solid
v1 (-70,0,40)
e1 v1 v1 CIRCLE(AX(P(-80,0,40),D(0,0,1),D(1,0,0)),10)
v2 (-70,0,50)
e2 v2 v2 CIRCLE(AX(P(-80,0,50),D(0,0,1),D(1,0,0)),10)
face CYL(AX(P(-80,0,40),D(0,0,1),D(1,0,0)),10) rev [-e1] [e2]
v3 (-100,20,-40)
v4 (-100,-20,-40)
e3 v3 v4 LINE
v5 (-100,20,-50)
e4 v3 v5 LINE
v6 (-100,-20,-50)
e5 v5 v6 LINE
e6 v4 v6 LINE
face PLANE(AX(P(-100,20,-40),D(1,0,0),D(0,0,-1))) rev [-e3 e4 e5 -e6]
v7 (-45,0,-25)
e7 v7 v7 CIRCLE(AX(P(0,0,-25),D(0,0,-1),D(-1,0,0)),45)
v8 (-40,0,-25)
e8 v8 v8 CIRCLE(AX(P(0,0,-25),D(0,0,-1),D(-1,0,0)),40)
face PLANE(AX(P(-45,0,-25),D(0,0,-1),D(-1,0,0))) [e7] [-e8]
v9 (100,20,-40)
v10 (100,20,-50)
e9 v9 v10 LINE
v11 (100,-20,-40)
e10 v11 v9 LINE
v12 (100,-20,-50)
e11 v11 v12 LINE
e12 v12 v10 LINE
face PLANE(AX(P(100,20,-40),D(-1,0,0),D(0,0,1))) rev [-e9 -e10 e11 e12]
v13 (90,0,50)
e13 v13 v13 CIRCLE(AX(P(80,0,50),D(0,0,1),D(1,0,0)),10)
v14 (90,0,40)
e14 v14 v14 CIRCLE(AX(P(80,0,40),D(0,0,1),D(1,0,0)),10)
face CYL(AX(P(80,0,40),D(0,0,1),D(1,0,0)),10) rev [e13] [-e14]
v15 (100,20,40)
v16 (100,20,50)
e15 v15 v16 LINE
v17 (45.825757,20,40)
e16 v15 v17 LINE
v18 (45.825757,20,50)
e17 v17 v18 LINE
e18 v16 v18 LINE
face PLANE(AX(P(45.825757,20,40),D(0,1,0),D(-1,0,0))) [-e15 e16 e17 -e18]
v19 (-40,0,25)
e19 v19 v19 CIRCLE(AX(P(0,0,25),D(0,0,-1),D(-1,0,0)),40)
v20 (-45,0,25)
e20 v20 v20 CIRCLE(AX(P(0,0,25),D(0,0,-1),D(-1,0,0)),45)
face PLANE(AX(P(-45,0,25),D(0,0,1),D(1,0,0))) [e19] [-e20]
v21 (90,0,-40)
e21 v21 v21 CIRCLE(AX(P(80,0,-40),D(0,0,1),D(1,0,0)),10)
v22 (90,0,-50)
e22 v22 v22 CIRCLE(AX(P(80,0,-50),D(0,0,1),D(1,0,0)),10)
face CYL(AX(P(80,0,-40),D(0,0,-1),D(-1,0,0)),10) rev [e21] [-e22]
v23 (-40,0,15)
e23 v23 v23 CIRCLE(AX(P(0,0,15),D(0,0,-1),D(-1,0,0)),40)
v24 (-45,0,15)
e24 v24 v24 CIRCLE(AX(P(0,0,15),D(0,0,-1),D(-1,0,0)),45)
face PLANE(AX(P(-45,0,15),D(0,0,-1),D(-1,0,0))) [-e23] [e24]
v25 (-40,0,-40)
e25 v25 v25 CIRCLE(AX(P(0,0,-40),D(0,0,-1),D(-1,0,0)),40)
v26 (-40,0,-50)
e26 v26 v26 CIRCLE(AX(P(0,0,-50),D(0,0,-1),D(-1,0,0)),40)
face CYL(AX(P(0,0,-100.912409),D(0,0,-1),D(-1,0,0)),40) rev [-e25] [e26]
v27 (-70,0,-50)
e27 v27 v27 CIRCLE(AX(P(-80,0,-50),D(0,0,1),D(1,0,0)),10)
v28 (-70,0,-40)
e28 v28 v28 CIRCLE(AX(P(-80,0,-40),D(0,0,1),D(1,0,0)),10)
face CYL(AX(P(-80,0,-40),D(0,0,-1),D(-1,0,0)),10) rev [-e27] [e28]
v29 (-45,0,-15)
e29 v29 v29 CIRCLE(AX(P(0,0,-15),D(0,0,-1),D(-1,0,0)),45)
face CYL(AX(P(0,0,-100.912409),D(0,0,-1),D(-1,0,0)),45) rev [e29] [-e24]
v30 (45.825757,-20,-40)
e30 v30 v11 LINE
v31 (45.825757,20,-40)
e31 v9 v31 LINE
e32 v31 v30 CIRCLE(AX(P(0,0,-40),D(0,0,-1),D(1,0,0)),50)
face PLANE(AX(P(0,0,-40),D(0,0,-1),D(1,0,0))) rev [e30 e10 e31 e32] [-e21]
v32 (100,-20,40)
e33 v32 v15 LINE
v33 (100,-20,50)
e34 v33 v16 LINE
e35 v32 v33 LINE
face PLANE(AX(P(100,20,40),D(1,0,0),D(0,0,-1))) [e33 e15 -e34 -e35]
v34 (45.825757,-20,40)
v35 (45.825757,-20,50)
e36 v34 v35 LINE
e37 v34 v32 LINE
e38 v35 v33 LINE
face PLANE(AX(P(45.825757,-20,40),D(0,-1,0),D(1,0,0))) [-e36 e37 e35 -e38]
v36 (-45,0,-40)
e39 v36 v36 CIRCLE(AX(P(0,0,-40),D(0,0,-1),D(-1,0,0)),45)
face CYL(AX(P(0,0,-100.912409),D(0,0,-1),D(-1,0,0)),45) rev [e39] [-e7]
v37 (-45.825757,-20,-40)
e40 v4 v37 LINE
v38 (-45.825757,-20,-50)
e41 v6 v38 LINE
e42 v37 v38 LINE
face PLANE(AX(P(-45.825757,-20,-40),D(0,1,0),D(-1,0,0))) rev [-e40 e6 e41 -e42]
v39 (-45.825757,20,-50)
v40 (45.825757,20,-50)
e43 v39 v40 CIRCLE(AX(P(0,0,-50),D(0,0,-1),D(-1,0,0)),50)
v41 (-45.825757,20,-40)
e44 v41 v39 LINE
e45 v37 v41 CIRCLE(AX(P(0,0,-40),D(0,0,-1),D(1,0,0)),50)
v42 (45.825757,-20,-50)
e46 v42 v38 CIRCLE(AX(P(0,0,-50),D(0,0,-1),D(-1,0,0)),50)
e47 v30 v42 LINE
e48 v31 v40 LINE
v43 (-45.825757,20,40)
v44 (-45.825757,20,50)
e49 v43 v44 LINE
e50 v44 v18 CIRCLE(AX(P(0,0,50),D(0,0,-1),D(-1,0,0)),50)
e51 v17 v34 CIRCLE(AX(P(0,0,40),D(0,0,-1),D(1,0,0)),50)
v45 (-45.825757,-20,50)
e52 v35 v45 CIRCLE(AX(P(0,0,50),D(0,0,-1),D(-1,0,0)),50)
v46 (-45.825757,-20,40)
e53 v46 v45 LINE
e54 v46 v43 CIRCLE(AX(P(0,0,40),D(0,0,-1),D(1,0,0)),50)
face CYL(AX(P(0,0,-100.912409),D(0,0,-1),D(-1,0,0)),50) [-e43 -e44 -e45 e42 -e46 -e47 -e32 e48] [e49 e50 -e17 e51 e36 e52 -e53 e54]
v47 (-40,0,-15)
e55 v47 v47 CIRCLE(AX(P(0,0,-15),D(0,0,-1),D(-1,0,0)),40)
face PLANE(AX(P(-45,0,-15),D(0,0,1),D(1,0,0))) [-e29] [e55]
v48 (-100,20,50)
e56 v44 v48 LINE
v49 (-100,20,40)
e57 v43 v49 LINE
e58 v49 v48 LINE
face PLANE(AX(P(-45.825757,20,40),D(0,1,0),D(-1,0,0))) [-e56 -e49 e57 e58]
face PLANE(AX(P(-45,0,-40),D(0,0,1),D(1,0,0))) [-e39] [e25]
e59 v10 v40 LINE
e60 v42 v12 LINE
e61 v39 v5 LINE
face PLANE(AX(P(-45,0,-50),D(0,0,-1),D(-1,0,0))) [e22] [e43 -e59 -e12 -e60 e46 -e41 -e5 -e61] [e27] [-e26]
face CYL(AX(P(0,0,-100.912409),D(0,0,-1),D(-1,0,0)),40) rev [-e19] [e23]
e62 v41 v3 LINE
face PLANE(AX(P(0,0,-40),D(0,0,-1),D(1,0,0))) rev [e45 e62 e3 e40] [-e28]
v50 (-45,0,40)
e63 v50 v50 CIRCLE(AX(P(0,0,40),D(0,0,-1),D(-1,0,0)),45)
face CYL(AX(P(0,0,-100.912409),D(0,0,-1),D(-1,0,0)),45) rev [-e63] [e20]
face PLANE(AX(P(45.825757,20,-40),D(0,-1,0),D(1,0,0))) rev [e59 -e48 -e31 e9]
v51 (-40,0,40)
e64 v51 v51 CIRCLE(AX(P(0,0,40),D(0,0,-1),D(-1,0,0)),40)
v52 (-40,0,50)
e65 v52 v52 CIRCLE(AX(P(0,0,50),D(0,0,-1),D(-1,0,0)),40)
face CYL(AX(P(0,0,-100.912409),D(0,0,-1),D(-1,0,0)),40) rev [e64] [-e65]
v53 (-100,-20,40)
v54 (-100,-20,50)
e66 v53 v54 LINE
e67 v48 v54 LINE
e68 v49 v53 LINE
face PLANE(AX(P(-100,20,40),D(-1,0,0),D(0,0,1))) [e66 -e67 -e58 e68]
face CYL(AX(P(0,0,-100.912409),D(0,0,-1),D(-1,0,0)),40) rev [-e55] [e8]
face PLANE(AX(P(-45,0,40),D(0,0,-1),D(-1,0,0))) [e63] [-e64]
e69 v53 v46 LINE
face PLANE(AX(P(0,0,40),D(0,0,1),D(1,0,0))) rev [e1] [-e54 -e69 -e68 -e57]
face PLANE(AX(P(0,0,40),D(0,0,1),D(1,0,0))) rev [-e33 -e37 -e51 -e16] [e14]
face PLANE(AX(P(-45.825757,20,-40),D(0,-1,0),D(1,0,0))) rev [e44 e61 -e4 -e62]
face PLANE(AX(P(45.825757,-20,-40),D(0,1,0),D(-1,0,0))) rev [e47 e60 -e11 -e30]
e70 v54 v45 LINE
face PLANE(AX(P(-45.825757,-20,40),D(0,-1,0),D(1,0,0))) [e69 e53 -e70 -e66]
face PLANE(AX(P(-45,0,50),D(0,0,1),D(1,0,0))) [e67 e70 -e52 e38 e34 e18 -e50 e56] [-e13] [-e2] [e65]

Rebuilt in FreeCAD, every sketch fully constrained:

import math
import FreeCAD as App
import Part
import Sketcher
from FreeCAD import Vector

doc = App.newDocument("Part")
body = doc.addObject("PartDesign::Body", "Body")

sketch1 = body.newObject("Sketcher::SketchObject", "Sketch")
sketch1.AttachmentSupport = (doc.getObject("XZ_Plane"), [""])
sketch1.MapMode = "FlatFace"
sketch1.addGeometry([
    Part.LineSegment(Vector(-50, -50, 0), Vector(-50, 50, 0)),
    Part.LineSegment(Vector(-50, 50, 0), Vector(-40, 50, 0)),
    Part.LineSegment(Vector(-40, 50, 0), Vector(-40, 40, 0)),
    Part.LineSegment(Vector(-40, 40, 0), Vector(-45, 40, 0)),
    Part.LineSegment(Vector(-45, 40, 0), Vector(-45, 25, 0)),
    Part.LineSegment(Vector(-45, 25, 0), Vector(-40, 25, 0)),
    Part.LineSegment(Vector(-40, 25, 0), Vector(-40, 15, 0)),
    Part.LineSegment(Vector(-40, 15, 0), Vector(-45, 15, 0)),
    Part.LineSegment(Vector(-45, 15, 0), Vector(-45, -15, 0)),
    Part.LineSegment(Vector(-45, -15, 0), Vector(-40, -15, 0)),
    Part.LineSegment(Vector(-40, -15, 0), Vector(-40, -25, 0)),
    Part.LineSegment(Vector(-40, -25, 0), Vector(-45, -25, 0)),
    Part.LineSegment(Vector(-45, -25, 0), Vector(-45, -40, 0)),
    Part.LineSegment(Vector(-45, -40, 0), Vector(-40, -40, 0)),
    Part.LineSegment(Vector(-40, -40, 0), Vector(-40, -50, 0)),
    Part.LineSegment(Vector(-40, -50, 0), Vector(-50, -50, 0)),
], False)
sketch1.addConstraint([
    Sketcher.Constraint("Coincident", 0, 2, 1, 1),
    Sketcher.Constraint("Coincident", 1, 2, 2, 1),
    Sketcher.Constraint("Coincident", 2, 2, 3, 1),
    Sketcher.Constraint("Coincident", 3, 2, 4, 1),
    Sketcher.Constraint("Coincident", 4, 2, 5, 1),
    Sketcher.Constraint("Coincident", 5, 2, 6, 1),
    Sketcher.Constraint("Coincident", 6, 2, 7, 1),
    Sketcher.Constraint("Coincident", 7, 2, 8, 1),
    Sketcher.Constraint("Coincident", 8, 2, 9, 1),
    Sketcher.Constraint("Coincident", 9, 2, 10, 1),
    Sketcher.Constraint("Coincident", 10, 2, 11, 1),
    Sketcher.Constraint("Coincident", 11, 2, 12, 1),
    Sketcher.Constraint("Coincident", 12, 2, 13, 1),
    Sketcher.Constraint("Coincident", 13, 2, 14, 1),
    Sketcher.Constraint("Coincident", 14, 2, 15, 1),
    Sketcher.Constraint("Coincident", 15, 2, 0, 1),
    Sketcher.Constraint("Vertical", 0),
    Sketcher.Constraint("Horizontal", 1),
    Sketcher.Constraint("Vertical", 2),
    Sketcher.Constraint("Horizontal", 3),
    Sketcher.Constraint("Vertical", 4),
    Sketcher.Constraint("Horizontal", 5),
    Sketcher.Constraint("Vertical", 6),
    Sketcher.Constraint("Horizontal", 7),
    Sketcher.Constraint("Vertical", 8),
    Sketcher.Constraint("Horizontal", 9),
    Sketcher.Constraint("Vertical", 10),
    Sketcher.Constraint("Horizontal", 11),
    Sketcher.Constraint("Vertical", 12),
    Sketcher.Constraint("Horizontal", 13),
    Sketcher.Constraint("Vertical", 14),
    Sketcher.Constraint("Horizontal", 15),
    Sketcher.Constraint("Symmetric", 6, 2, 9, 2, -1),
    Sketcher.Constraint("Symmetric", 4, 2, 11, 2, -1),
    Sketcher.Constraint("Symmetric", 2, 2, 13, 2, -1),
    Sketcher.Constraint("Vertical", 2, 2, 5, 2),
    Sketcher.Constraint("Vertical", 4, 2, 7, 2),
    Sketcher.Constraint("Equal", 15, 2),
    Sketcher.Constraint("Equal", 2, 6),
    Sketcher.Constraint("Equal", 10, 14),
    Sketcher.Constraint("DistanceX", 1, 1, 1, 2, 10.0),
    Sketcher.Constraint("DistanceX", 3, 2, 3, 1, 5.0),
    Sketcher.Constraint("DistanceY", 0, 1, 0, 2, 100.0),
    Sketcher.Constraint("DistanceY", 4, 2, 4, 1, 15.0),
    Sketcher.Constraint("DistanceX", 0, 2, -1, 1, 50.0),
])
revolution = body.newObject("PartDesign::Revolution", "Revolution")
revolution.Profile = sketch1
revolution.ReferenceAxis = (sketch1, ["V_Axis"])
revolution.Angle = 360

sketch2 = body.newObject("Sketcher::SketchObject", "Sketch001")
sketch2.AttachmentSupport = (doc.getObject("XY_Plane"), [""])
sketch2.MapMode = "FlatFace"
sketch2.AttachmentOffset = App.Placement(Vector(0, 0, 50), App.Rotation())
sketch2.addGeometry([
    Part.LineSegment(Vector(100, 20, 0), Vector(46, 20, 0)),
    Part.ArcOfCircle(Part.Circle(Vector(0, 0, 0), Vector(0, 0, 1), 50), math.radians(-24), math.radians(24)),
    Part.LineSegment(Vector(46, -20, 0), Vector(100, -20, 0)),
    Part.LineSegment(Vector(100, -20, 0), Vector(100, 20, 0)),
    Part.Circle(Vector(80, 0, 0), Vector(0, 0, 1), 10),
    Part.LineSegment(Vector(-100, 20, 0), Vector(-100, -20, 0)),
    Part.LineSegment(Vector(-100, -20, 0), Vector(-46, -20, 0)),
    Part.ArcOfCircle(Part.Circle(Vector(0, 0, 0), Vector(0, 0, 1), 50), math.radians(156), math.radians(204)),
    Part.LineSegment(Vector(-46, 20, 0), Vector(-100, 20, 0)),
    Part.Circle(Vector(-80, 0, 0), Vector(0, 0, 1), 10),
], False)
sketch2.addConstraint([
    Sketcher.Constraint("Coincident", 0, 2, 1, 2),
    Sketcher.Constraint("Coincident", 1, 1, 2, 1),
    Sketcher.Constraint("Coincident", 2, 2, 3, 1),
    Sketcher.Constraint("Coincident", 3, 2, 0, 1),
    Sketcher.Constraint("Coincident", 5, 2, 6, 1),
    Sketcher.Constraint("Coincident", 6, 2, 7, 2),
    Sketcher.Constraint("Coincident", 7, 1, 8, 1),
    Sketcher.Constraint("Coincident", 8, 2, 5, 1),
    Sketcher.Constraint("Horizontal", 0),
    Sketcher.Constraint("Horizontal", 2),
    Sketcher.Constraint("Vertical", 3),
    Sketcher.Constraint("Vertical", 5),
    Sketcher.Constraint("Horizontal", 6),
    Sketcher.Constraint("Horizontal", 8),
    Sketcher.Constraint("Coincident", 1, 3, -1, 1),
    Sketcher.Constraint("Coincident", 7, 3, -1, 1),
    Sketcher.Constraint("Equal", 1, 7),
    Sketcher.Constraint("Equal", 4, 9),
    Sketcher.Constraint("Symmetric", 4, 3, 9, 3, -1, 1),
    Sketcher.Constraint("Symmetric", 3, 2, 5, 2, -1, 1),
    Sketcher.Constraint("PointOnObject", 4, 3, -1),
    Sketcher.Constraint("Horizontal", 2, 2, 5, 2),
    Sketcher.Constraint("Horizontal", 3, 2, 7, 1),
    Sketcher.Constraint("Diameter", 4, 20.0),
    Sketcher.Constraint("Radius", 1, 50.0),
    Sketcher.Constraint("DistanceY", 3, 1, 3, 2, 40.0),
    Sketcher.Constraint("DistanceX", -1, 1, 4, 3, 80.0),
    Sketcher.Constraint("DistanceX", -1, 1, 2, 2, 100.0),
])
pad1 = body.newObject("PartDesign::Pad", "Pad")
pad1.Profile = sketch2
pad1.Length = 10
pad1.Reversed = True
doc.recompute()

mirrored = body.newObject("PartDesign::Mirrored", "Mirrored")
mirrored.Originals = [pad1]
mirrored.MirrorPlane = (doc.getObject("XY_Plane"), [""])
body.Tip = mirrored

doc.recompute()
